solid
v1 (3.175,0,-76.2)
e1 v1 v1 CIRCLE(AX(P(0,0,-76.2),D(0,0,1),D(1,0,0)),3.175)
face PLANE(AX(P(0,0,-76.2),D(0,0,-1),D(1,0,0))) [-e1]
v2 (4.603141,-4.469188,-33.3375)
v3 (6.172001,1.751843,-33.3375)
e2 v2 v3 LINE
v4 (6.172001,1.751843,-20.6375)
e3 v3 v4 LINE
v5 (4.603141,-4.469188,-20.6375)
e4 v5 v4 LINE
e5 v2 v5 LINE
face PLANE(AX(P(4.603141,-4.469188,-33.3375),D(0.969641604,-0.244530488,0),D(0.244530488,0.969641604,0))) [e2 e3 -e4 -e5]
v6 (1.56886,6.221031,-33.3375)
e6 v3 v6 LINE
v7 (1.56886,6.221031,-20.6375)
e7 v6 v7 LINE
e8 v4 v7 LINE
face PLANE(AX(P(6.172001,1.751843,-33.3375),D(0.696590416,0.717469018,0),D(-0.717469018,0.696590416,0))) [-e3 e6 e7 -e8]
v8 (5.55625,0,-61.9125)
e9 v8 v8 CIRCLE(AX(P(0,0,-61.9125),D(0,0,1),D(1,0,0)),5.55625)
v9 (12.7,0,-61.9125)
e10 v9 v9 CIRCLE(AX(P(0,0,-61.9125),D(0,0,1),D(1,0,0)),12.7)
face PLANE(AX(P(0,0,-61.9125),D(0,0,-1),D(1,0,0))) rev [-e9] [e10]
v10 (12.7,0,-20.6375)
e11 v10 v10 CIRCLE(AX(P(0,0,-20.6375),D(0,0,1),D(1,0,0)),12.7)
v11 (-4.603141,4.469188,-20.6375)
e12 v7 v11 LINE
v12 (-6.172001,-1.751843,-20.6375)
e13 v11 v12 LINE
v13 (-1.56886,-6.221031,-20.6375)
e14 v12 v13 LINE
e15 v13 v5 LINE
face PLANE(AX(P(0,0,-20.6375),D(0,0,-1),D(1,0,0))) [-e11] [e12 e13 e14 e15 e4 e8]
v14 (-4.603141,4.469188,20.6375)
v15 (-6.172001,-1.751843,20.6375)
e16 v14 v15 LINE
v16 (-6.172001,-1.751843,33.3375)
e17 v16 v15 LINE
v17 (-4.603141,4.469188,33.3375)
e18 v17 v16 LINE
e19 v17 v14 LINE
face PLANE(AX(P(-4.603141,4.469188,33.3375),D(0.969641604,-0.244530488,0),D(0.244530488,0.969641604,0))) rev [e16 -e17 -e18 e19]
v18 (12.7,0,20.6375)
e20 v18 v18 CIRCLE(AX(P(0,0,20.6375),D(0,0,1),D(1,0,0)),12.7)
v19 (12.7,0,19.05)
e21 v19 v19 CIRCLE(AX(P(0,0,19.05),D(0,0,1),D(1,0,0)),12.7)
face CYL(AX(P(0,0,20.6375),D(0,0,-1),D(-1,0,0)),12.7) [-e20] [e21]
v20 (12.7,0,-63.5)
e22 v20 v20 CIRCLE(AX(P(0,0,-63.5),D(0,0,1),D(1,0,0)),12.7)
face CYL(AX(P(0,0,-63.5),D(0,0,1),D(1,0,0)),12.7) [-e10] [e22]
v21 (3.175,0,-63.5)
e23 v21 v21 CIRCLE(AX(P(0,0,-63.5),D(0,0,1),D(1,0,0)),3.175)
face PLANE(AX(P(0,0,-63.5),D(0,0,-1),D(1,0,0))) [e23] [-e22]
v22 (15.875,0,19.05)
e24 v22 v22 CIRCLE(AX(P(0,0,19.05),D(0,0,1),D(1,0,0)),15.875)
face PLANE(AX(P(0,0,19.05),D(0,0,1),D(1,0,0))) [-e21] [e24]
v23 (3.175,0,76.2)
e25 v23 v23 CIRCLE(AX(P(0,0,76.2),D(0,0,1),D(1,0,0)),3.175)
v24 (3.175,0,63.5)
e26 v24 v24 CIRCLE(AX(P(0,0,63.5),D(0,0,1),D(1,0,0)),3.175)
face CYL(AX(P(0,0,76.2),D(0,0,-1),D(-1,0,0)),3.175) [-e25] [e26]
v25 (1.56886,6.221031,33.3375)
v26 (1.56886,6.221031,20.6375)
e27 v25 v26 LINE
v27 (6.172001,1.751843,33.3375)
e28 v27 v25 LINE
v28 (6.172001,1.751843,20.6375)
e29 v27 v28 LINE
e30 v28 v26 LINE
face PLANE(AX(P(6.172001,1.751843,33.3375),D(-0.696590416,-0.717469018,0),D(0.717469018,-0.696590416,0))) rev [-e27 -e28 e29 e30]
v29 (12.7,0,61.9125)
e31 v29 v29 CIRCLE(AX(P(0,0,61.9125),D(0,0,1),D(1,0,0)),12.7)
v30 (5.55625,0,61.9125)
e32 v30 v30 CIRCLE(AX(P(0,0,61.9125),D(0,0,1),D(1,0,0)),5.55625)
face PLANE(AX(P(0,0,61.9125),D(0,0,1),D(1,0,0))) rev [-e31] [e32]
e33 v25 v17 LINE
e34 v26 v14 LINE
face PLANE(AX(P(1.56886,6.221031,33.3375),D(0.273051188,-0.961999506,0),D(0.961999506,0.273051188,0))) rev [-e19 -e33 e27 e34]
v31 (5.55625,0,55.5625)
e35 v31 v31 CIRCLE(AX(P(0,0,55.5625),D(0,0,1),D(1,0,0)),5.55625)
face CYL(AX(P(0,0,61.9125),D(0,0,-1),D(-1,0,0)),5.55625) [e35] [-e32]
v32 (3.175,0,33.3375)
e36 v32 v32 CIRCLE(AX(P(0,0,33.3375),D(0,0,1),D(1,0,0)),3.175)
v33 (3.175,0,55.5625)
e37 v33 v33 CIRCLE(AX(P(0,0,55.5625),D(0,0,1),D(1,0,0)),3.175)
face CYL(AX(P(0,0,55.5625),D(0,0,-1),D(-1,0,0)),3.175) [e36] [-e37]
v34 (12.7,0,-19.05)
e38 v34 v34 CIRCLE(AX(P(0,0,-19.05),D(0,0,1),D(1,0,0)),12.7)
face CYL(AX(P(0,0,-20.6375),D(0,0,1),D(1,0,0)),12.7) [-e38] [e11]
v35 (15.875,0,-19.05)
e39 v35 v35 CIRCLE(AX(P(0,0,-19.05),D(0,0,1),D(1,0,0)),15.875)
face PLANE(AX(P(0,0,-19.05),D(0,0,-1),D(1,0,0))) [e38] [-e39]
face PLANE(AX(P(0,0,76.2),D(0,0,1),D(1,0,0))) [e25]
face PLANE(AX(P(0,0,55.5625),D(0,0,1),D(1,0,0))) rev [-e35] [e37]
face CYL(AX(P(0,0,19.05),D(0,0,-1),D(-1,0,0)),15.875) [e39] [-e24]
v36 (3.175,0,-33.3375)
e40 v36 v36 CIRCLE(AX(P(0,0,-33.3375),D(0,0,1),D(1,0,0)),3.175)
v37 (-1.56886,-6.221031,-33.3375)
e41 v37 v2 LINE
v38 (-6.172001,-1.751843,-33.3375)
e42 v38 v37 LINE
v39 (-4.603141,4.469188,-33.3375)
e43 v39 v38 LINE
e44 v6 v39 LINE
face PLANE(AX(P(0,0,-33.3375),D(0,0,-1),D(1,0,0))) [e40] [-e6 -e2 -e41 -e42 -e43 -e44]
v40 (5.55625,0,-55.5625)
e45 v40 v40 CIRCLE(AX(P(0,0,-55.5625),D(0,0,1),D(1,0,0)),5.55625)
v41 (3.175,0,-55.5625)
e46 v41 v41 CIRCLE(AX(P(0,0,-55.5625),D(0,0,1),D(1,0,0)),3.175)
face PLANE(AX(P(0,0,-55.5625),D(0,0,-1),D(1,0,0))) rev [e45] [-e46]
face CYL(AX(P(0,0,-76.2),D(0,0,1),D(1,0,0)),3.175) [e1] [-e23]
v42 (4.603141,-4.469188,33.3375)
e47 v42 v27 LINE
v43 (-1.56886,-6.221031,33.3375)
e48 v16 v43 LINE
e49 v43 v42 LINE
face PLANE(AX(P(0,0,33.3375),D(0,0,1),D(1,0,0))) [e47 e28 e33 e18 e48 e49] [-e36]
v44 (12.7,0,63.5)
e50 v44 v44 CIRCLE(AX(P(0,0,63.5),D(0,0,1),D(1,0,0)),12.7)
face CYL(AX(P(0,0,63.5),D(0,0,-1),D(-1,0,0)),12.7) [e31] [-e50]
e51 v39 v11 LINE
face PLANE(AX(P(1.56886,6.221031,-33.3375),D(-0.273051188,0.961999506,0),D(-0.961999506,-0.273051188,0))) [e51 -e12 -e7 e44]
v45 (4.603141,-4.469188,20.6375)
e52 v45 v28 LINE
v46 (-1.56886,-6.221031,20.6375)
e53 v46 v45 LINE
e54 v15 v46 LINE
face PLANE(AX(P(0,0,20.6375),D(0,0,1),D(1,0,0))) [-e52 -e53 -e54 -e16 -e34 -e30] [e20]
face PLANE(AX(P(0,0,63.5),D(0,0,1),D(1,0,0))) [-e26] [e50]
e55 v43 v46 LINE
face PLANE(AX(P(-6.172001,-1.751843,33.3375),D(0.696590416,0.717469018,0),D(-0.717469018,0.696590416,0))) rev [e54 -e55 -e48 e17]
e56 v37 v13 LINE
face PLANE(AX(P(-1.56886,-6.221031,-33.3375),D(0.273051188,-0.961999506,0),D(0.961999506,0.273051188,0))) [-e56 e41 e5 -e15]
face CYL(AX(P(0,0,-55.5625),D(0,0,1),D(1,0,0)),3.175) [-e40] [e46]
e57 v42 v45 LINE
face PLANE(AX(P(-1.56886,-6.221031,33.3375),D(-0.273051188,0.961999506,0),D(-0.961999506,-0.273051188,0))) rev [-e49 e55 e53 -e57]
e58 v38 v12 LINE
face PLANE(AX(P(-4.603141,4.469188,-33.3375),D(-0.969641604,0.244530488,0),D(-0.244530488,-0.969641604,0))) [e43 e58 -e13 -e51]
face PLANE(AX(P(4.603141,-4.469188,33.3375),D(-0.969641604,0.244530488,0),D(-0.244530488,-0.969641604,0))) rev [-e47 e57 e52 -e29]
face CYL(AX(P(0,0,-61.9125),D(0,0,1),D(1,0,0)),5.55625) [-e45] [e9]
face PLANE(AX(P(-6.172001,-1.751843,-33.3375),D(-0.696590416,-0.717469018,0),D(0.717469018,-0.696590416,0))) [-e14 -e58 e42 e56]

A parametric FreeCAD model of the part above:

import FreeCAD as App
import Part
import Sketcher
from FreeCAD import Vector
Q = App.Units.Quantity

doc = App.newDocument("Part")
body = doc.addObject("PartDesign::Body", "Body")

sketch1 = body.newObject("Sketcher::SketchObject", "Sketch")
sketch1.AttachmentSupport = (doc.getObject("XY_Plane"), [""])
sketch1.MapMode = "FlatFace"
sketch1.addGeometry(Part.Circle(Vector(0, 0, 0), Vector(0, 0, 1), 16), False)
sketch1.addConstraint([
    Sketcher.Constraint("Coincident", 0, 3, -1, 1),
    Sketcher.Constraint("Diameter", 0, Q("1.25 in")),
])
pad1 = body.newObject("PartDesign::Pad", "Pad")
pad1.Profile = sketch1
pad1.Length = Q("0.75 in")

sketch2 = body.newObject("Sketcher::SketchObject", "Sketch001")
sketch2.AttachmentSupport = (doc.getObject("XY_Plane"), [""])
sketch2.MapMode = "FlatFace"
sketch2.AttachmentOffset = App.Placement(Vector(0, 0, 0.75 * 25.4), App.Rotation())
sketch2.addGeometry(Part.Circle(Vector(0, 0, 0), Vector(0, 0, 1), 13), False)
sketch2.addConstraint([
    Sketcher.Constraint("Coincident", 0, 3, -1, 1),
    Sketcher.Constraint("Diameter", 0, Q("1 in")),
])
pad2 = body.newObject("PartDesign::Pad", "Pad001")
pad2.Profile = sketch2
pad2.Length = Q("0.0625 in")

sketch3 = body.newObject("Sketcher::SketchObject", "Sketch002")
sketch3.AttachmentSupport = (doc.getObject("XY_Plane"), [""])
sketch3.MapMode = "FlatFace"
sketch3.AttachmentOffset = App.Placement(Vector(0, 0, 0.8125 * 25.4), App.Rotation())
sketch3.addGeometry([
    Part.LineSegment(Vector(5, -4, 0), Vector(6, 2, 0)),
    Part.LineSegment(Vector(6, 2, 0), Vector(2, 6, 0)),
    Part.LineSegment(Vector(2, 6, 0), Vector(-5, 4, 0)),
    Part.LineSegment(Vector(-5, 4, 0), Vector(-6, -2, 0)),
    Part.LineSegment(Vector(-6, -2, 0), Vector(-2, -6, 0)),
    Part.LineSegment(Vector(-2, -6, 0), Vector(5, -4, 0)),
], False)
sketch3.addConstraint([
    Sketcher.Constraint("Coincident", 0, 2, 1, 1),
    Sketcher.Constraint("Coincident", 1, 2, 2, 1),
    Sketcher.Constraint("Coincident", 2, 2, 3, 1),
    Sketcher.Constraint("Coincident", 3, 2, 4, 1),
    Sketcher.Constraint("Coincident", 4, 2, 5, 1),
    Sketcher.Constraint("Coincident", 5, 2, 0, 1),
    Sketcher.Constraint("Symmetric", 0, 2, 3, 2, -1, 1),
    Sketcher.Constraint("Symmetric", 1, 2, 4, 2, -1, 1),
    Sketcher.Constraint("Symmetric", 2, 2, 5, 2, -1, 1),
    Sketcher.Constraint("Equal", 0, 1),
    Sketcher.Constraint("Equal", 1, 2),
    Sketcher.Constraint("DistanceX", -1, 1, 0, 2, 6.172001),
    Sketcher.Constraint("DistanceX", 2, 2, 1, 2, 6.172001),
    Sketcher.Constraint("DistanceX", -1, 1, 1, 2, 1.56886),
    Sketcher.Constraint("DistanceY", -1, 1, 1, 2, 6.221031),
])
pad3 = body.newObject("PartDesign::Pad", "Pad002")
pad3.Profile = sketch3
pad3.Length = Q("0.5 in")

sketch4 = body.newObject("Sketcher::SketchObject", "Sketch003")
sketch4.AttachmentSupport = (doc.getObject("XY_Plane"), [""])
sketch4.MapMode = "FlatFace"
sketch4.AttachmentOffset = App.Placement(Vector(0, 0, 1.3125 * 25.4), App.Rotation())
sketch4.addGeometry(Part.Circle(Vector(0, 0, 0), Vector(0, 0, 1), 3.2), False)
sketch4.addConstraint([
    Sketcher.Constraint("Coincident", 0, 3, -1, 1),
    Sketcher.Constraint("Diameter", 0, Q("0.25 in")),
])
pad4 = body.newObject("PartDesign::Pad", "Pad003")
pad4.Profile = sketch4
pad4.Length = Q("0.875 in")

sketch5 = body.newObject("Sketcher::SketchObject", "Sketch004")
sketch5.AttachmentSupport = (doc.getObject("XY_Plane"), [""])
sketch5.MapMode = "FlatFace"
sketch5.AttachmentOffset = App.Placement(Vector(0, 0, 2.1875 * 25.4), App.Rotation())
sketch5.addGeometry(Part.Circle(Vector(0, 0, 0), Vector(0, 0, 1), 6), False)
sketch5.addConstraint([
    Sketcher.Constraint("Coincident", 0, 3, -1, 1),
    Sketcher.Constraint("Diameter", 0, Q("0.4375 in")),
])
pad5 = body.newObject("PartDesign::Pad", "Pad004")
pad5.Profile = sketch5
pad5.Length = Q("0.25 in")

sketch6 = body.newObject("Sketcher::SketchObject", "Sketch005")
sketch6.AttachmentSupport = (doc.getObject("XY_Plane"), [""])
sketch6.MapMode = "FlatFace"
sketch6.AttachmentOffset = App.Placement(Vector(0, 0, 2.4375 * 25.4), App.Rotation())
sketch6.addGeometry(Part.Circle(Vector(0, 0, 0), Vector(0, 0, 1), 13), False)
sketch6.addConstraint([
    Sketcher.Constraint("Coincident", 0, 3, -1, 1),
    Sketcher.Constraint("Diameter", 0, Q("1 in")),
])
pad6 = body.newObject("PartDesign::Pad", "Pad005")
pad6.Profile = sketch6
pad6.Length = Q("0.0625 in")

sketch7 = body.newObject("Sketcher::SketchObject", "Sketch006")
sketch7.AttachmentSupport = (doc.getObject("XY_Plane"), [""])
sketch7.MapMode = "FlatFace"
sketch7.AttachmentOffset = App.Placement(Vector(0, 0, 2.5 * 25.4), App.Rotation())
sketch7.addGeometry(Part.Circle(Vector(0, 0, 0), Vector(0, 0, 1), 3.2), False)
sketch7.addConstraint([
    Sketcher.Constraint("Coincident", 0, 3, -1, 1),
    Sketcher.Constraint("Diameter", 0, Q("0.25 in")),
])
pad7 = body.newObject("PartDesign::Pad", "Pad006")
pad7.Profile = sketch7
pad7.Length = Q("0.5 in")
doc.recompute()

mirrored = body.newObject("PartDesign::Mirrored", "Mirrored")
mirrored.Originals = [pad1, pad2, pad3, pad4, pad5, pad6, pad7]
mirrored.MirrorPlane = (doc.getObject("XY_Plane"), [""])
body.Tip = mirrored

doc.recompute()
